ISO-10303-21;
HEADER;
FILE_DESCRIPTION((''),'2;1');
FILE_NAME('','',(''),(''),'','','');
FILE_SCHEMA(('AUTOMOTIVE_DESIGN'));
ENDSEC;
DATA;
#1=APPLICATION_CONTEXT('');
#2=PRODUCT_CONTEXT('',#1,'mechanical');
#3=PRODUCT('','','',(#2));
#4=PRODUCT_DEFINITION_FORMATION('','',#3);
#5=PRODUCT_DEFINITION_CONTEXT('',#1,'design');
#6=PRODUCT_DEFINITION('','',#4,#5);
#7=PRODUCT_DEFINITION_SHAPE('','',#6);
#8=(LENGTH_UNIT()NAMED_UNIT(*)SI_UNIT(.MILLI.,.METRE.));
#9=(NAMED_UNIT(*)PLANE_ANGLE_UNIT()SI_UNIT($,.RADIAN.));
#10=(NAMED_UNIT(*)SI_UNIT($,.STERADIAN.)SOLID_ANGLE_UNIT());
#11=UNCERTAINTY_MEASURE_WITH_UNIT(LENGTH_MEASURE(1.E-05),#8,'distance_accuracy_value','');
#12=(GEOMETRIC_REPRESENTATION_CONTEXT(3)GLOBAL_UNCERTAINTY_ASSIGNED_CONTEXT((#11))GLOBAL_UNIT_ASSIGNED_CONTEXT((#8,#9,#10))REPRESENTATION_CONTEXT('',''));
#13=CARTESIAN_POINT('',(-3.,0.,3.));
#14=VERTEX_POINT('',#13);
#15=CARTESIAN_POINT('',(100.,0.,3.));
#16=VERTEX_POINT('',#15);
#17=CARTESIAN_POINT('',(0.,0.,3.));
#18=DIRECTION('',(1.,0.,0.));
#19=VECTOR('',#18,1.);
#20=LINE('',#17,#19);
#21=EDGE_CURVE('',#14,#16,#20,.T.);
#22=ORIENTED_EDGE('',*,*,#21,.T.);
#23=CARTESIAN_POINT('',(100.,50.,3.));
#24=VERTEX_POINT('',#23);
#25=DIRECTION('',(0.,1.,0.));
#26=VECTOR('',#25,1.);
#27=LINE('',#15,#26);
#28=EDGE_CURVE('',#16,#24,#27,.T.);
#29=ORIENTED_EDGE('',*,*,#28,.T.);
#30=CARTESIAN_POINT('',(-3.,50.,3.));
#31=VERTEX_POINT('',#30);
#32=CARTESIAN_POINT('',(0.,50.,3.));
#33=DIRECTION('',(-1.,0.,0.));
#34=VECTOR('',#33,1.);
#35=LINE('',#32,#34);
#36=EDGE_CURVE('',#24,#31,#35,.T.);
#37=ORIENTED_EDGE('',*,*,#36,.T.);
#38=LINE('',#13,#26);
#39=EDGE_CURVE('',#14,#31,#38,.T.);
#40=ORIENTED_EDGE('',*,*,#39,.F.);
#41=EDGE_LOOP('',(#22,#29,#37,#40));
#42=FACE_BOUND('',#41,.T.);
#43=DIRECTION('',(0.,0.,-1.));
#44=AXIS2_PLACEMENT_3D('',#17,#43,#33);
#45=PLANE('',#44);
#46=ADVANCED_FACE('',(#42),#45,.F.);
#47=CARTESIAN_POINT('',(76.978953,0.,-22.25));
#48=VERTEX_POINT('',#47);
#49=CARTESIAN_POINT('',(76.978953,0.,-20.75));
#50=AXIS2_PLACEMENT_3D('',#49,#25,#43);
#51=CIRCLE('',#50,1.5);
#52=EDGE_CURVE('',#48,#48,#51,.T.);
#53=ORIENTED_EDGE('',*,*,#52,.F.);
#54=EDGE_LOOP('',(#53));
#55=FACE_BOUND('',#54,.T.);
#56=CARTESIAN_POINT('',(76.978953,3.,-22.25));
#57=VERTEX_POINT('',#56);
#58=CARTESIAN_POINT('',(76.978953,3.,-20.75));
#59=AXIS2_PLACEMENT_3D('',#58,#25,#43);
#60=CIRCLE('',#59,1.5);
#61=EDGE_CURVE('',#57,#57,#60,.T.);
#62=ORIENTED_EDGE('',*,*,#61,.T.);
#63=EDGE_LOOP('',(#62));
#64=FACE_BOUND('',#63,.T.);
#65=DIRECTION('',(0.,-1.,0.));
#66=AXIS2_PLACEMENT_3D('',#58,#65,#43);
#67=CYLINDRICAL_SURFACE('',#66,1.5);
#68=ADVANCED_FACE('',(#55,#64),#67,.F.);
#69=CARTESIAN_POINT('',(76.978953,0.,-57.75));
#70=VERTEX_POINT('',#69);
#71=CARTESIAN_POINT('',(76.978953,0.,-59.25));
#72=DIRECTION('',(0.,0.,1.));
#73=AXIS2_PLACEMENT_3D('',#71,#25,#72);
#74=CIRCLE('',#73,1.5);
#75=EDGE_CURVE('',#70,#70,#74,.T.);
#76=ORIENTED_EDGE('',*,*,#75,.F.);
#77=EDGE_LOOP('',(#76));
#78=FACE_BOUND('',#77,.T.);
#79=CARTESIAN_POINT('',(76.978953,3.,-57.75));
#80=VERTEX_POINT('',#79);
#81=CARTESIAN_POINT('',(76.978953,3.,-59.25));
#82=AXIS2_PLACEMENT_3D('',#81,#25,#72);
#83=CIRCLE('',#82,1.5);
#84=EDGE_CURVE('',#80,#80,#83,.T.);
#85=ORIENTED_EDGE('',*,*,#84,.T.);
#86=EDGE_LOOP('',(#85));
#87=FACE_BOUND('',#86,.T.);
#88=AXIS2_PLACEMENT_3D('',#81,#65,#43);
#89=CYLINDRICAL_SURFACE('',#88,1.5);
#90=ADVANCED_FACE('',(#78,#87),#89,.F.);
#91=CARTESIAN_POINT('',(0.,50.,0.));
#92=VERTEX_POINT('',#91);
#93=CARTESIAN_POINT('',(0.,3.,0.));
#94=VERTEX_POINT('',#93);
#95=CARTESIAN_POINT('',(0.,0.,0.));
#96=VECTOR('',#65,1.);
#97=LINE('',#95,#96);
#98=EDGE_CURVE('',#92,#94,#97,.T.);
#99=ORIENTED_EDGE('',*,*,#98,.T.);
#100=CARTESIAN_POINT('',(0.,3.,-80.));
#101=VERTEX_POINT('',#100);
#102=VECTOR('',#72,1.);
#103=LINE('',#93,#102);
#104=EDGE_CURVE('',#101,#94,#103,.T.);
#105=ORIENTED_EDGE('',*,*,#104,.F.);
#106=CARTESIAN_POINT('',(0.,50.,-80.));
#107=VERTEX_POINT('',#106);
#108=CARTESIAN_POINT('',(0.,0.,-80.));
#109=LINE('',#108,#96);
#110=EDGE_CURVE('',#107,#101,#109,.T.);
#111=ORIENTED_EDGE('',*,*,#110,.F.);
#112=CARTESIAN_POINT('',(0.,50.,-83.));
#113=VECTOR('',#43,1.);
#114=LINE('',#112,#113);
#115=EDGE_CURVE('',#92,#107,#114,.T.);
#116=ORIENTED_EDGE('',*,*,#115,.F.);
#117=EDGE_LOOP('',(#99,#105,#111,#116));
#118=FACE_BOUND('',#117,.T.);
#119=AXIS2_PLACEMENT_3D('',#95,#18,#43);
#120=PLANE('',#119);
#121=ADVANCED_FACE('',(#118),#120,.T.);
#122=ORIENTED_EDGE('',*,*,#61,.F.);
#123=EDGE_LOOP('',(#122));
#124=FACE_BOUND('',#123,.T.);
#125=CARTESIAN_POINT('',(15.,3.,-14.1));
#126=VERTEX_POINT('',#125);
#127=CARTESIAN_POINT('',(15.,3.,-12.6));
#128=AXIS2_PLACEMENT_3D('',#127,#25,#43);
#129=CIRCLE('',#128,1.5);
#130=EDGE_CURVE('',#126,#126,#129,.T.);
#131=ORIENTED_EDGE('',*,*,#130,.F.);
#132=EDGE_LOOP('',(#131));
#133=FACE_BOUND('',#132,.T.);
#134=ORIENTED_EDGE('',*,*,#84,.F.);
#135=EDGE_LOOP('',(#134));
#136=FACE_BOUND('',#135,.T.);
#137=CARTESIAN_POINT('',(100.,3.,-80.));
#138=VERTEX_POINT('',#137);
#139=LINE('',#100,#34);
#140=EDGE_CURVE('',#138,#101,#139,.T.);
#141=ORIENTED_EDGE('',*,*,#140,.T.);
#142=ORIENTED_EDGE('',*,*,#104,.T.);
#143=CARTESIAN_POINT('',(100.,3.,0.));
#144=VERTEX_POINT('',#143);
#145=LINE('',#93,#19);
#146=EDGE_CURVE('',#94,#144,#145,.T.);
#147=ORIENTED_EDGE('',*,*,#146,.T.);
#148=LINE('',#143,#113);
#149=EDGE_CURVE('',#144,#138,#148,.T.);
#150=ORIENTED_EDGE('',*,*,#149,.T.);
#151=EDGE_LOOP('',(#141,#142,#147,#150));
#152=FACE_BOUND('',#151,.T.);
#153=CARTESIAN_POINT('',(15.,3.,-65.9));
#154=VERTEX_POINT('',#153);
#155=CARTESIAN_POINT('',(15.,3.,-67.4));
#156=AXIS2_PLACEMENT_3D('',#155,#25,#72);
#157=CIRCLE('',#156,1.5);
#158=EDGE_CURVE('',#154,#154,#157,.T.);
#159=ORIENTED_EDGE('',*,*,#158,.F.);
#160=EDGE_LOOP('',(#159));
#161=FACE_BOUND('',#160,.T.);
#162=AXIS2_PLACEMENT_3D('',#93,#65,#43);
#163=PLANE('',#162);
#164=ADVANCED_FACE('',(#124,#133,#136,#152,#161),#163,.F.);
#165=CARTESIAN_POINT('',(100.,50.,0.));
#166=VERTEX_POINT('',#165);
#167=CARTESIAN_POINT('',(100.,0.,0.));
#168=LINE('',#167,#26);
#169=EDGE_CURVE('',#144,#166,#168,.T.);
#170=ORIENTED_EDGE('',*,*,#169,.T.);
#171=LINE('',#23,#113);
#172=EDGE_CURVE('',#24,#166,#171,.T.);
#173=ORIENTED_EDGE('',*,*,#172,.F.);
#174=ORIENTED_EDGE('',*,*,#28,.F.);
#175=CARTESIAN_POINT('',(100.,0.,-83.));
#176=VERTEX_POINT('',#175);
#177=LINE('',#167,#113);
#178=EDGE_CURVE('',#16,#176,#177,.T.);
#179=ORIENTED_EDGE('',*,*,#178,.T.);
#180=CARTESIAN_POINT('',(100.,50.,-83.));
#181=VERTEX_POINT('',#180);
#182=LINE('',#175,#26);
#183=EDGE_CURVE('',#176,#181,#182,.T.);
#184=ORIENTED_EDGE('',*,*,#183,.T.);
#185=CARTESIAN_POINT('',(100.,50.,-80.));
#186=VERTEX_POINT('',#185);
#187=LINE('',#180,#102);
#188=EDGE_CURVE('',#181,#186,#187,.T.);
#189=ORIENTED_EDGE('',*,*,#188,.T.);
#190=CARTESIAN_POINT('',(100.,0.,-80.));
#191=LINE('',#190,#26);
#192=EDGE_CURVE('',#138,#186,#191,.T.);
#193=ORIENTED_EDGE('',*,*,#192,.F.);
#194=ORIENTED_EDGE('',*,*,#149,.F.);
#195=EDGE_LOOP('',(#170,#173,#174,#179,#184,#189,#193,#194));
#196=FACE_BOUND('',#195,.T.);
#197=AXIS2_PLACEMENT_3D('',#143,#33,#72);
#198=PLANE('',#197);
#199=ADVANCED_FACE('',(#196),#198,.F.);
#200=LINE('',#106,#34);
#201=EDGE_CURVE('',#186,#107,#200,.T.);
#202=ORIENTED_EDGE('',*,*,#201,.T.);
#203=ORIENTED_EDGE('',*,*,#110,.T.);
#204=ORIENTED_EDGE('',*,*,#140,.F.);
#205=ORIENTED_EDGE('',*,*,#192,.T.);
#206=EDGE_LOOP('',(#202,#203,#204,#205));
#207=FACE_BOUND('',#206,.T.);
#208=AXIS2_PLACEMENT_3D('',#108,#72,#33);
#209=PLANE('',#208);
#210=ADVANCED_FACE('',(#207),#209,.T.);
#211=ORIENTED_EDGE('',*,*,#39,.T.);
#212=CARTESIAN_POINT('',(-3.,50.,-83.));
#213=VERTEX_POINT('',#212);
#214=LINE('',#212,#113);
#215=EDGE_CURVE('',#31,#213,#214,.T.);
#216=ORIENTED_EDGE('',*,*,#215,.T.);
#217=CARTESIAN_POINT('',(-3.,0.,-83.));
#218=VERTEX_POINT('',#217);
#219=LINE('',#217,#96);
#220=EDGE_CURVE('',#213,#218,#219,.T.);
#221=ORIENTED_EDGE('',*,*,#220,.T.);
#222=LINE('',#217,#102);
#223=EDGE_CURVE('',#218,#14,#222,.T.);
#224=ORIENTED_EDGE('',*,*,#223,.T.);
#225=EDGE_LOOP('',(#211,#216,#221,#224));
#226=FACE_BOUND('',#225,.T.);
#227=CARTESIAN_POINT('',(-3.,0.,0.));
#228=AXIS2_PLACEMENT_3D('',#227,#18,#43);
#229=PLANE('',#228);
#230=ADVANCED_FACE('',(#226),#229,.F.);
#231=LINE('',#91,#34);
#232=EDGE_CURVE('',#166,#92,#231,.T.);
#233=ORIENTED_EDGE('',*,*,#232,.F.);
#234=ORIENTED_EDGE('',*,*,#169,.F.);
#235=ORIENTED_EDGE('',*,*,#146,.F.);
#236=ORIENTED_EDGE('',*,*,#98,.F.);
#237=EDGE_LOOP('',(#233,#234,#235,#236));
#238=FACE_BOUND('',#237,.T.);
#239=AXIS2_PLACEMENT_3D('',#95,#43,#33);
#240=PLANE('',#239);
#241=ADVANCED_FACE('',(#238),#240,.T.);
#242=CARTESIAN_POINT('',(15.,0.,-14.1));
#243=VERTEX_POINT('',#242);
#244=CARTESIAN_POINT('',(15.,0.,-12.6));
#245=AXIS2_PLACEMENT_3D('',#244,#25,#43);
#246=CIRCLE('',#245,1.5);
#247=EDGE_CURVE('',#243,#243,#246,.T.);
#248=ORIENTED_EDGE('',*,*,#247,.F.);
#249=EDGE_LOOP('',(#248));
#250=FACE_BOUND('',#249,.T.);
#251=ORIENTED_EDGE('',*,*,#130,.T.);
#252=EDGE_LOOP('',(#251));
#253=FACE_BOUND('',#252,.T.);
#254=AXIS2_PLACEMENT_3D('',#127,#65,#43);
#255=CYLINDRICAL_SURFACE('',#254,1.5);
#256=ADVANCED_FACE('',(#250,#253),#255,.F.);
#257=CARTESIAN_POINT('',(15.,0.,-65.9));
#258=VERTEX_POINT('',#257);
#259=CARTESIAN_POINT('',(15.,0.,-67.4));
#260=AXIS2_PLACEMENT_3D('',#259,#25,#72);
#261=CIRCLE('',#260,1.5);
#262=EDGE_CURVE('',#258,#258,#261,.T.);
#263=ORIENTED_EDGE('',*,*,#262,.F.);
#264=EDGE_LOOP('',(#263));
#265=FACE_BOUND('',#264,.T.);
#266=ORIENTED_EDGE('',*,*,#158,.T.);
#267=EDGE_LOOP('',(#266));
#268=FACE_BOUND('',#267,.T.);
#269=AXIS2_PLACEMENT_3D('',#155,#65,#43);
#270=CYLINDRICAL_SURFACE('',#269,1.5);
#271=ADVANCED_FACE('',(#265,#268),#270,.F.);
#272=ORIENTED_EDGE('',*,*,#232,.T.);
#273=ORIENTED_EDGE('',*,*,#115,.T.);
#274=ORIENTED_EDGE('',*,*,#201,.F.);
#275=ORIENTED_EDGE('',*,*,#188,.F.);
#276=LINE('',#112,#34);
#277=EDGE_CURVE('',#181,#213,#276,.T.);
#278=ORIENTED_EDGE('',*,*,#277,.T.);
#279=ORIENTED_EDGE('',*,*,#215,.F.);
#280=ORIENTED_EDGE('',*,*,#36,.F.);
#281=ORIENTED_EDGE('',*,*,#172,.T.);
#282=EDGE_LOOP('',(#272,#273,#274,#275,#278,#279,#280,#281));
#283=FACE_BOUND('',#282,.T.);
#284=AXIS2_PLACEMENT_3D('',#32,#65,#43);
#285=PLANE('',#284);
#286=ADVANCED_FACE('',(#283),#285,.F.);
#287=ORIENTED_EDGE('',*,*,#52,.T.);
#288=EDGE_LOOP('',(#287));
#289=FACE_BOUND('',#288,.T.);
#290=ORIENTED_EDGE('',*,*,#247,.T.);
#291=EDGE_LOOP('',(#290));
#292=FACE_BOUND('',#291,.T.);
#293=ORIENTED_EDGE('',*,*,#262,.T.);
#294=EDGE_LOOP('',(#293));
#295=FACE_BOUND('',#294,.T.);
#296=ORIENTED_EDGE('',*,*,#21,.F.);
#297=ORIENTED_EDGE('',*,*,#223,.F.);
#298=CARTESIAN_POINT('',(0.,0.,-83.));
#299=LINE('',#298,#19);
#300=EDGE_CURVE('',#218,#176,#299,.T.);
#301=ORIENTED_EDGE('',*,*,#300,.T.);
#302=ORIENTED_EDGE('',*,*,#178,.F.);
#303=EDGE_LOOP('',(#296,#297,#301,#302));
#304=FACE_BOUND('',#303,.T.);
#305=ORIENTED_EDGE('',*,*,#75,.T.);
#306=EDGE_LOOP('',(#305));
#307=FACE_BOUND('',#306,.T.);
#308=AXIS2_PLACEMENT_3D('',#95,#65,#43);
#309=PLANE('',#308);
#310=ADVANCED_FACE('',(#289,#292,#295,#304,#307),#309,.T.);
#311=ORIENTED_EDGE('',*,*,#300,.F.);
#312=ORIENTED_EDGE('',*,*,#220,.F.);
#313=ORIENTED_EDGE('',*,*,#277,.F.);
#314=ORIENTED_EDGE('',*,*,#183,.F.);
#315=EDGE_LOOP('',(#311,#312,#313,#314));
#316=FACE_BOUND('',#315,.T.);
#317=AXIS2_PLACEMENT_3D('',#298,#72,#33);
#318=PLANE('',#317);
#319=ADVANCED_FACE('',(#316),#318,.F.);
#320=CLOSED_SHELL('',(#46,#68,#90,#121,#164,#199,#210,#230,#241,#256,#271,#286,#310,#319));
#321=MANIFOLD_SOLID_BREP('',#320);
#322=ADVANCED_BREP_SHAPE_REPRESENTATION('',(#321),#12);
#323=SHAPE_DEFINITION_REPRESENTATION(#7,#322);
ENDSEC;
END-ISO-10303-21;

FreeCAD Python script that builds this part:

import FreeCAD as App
import Part
import Sketcher

V = App.Vector

doc = App.newDocument("Part")
body = doc.addObject("PartDesign::Body", "Body")

sketch1 = body.newObject("Sketcher::SketchObject", "Sketch")
sketch1.AttachmentSupport = (doc.getObject("XZ_Plane"), [""])
sketch1.MapMode = "FlatFace"
sketch1.addGeometry([
    Part.LineSegment(V(0, -80, 0), V(0, 0, 0)),
    Part.LineSegment(V(0, 0, 0), V(100, 0, 0)),
    Part.LineSegment(V(100, 0, 0), V(100, -80, 0)),
    Part.LineSegment(V(100, -80, 0), V(0, -80, 0)),
    Part.Circle(V(15, -12.6, 0), V(0, 0, 1), 1.5),
    Part.Circle(V(77, -20.8, 0), V(0, 0, 1), 1.5),
    Part.Circle(V(15, -67.4, 0), V(0, 0, 1), 1.5),
    Part.Circle(V(77, -59.2, 0), V(0, 0, 1), 1.5),
], False)
sketch1.addConstraint([
    Sketcher.Constraint("Coincident", 0, 2, 1, 1),
    Sketcher.Constraint("Coincident", 1, 2, 2, 1),
    Sketcher.Constraint("Coincident", 2, 2, 3, 1),
    Sketcher.Constraint("Coincident", 3, 2, 0, 1),
    Sketcher.Constraint("Vertical", 0),
    Sketcher.Constraint("Horizontal", 1),
    Sketcher.Constraint("Vertical", 2),
    Sketcher.Constraint("Horizontal", 3),
    Sketcher.Constraint("Coincident", 0, 2, -1, 1),
    Sketcher.Constraint("Equal", 4, 5),
    Sketcher.Constraint("Equal", 5, 6),
    Sketcher.Constraint("Equal", 6, 7),
    Sketcher.Constraint("Vertical", 4, 3, 6, 3),
    Sketcher.Constraint("Vertical", 5, 3, 7, 3),
    Sketcher.Constraint("Diameter", 4, 3.0),
    Sketcher.Constraint("DistanceX", 1, 1, 1, 2, 100.0),
    Sketcher.Constraint("DistanceY", 0, 1, 0, 2, 80.0),
    Sketcher.Constraint("DistanceX", -1, 1, 4, 3, 15.0),
    Sketcher.Constraint("DistanceY", 4, 3, -1, 1, 12.6),
    Sketcher.Constraint("DistanceY", 6, 3, -1, 1, 67.4),
    Sketcher.Constraint("DistanceY", 7, 3, 5, 3, 38.5),
    Sketcher.Constraint("DistanceY", 5, 3, -1, 1, 20.75),
    Sketcher.Constraint("DistanceX", -1, 1, 5, 3, 76.978953),
])
pad1 = body.newObject("PartDesign::Pad", "Pad")
pad1.Profile = sketch1
pad1.Length = 3
pad1.Reversed = True

sketch2 = body.newObject("Sketcher::SketchObject", "Sketch001")
sketch2.AttachmentSupport = (doc.getObject("XY_Plane"), [""])
sketch2.MapMode = "FlatFace"
sketch2.addGeometry([
    Part.LineSegment(V(0, 50, 0), V(0, 0, 0)),
    Part.LineSegment(V(0, 0, 0), V(100, 0, 0)),
    Part.LineSegment(V(100, 0, 0), V(100, 50, 0)),
    Part.LineSegment(V(100, 50, 0), V(0, 50, 0)),
], False)
sketch2.addConstraint([
    Sketcher.Constraint("Coincident", 0, 2, 1, 1),
    Sketcher.Constraint("Coincident", 1, 2, 2, 1),
    Sketcher.Constraint("Coincident", 2, 2, 3, 1),
    Sketcher.Constraint("Coincident", 3, 2, 0, 1),
    Sketcher.Constraint("Vertical", 0),
    Sketcher.Constraint("Horizontal", 1),
    Sketcher.Constraint("Vertical", 2),
    Sketcher.Constraint("Horizontal", 3),
    Sketcher.Constraint("Coincident", 0, 2, -1, 1),
    Sketcher.Constraint("DistanceX", 1, 1, 1, 2, 100.0),
    Sketcher.Constraint("DistanceY", 0, 2, 0, 1, 50.0),
])
pad2 = body.newObject("PartDesign::Pad", "Pad001")
pad2.Profile = sketch2
pad2.Length = 3
doc.recompute()

datumplane = body.newObject("PartDesign::Plane", "DatumPlane")
datumplane.AttachmentSupport = (doc.getObject("XY_Plane"), [""])
datumplane.MapMode = "FlatFace"
datumplane.AttachmentOffset = App.Placement(V(0, 0, -40), App.Rotation())
mirrored = body.newObject("PartDesign::Mirrored", "Mirrored")
mirrored.Originals = [pad2]
mirrored.MirrorPlane = (datumplane, [""])
body.Tip = mirrored

sketch3 = body.newObject("Sketcher::SketchObject", "Sketch002")
sketch3.AttachmentSupport = (doc.getObject("YZ_Plane"), [""])
sketch3.MapMode = "FlatFace"
sketch3.addGeometry([
    Part.LineSegment(V(50, -83, 0), V(0, -83, 0)),
    Part.LineSegment(V(0, -83, 0), V(0, 3, 0)),
    Part.LineSegment(V(0, 3, 0), V(50, 3, 0)),
    Part.LineSegment(V(50, 3, 0), V(50, -83, 0)),
], False)
sketch3.addConstraint([
    Sketcher.Constraint("Coincident", 0, 2, 1, 1),
    Sketcher.Constraint("Coincident", 1, 2, 2, 1),
    Sketcher.Constraint("Coincident", 2, 2, 3, 1),
    Sketcher.Constraint("Coincident", 3, 2, 0, 1),
    Sketcher.Constraint("Horizontal", 0),
    Sketcher.Constraint("Vertical", 1),
    Sketcher.Constraint("Horizontal", 2),
    Sketcher.Constraint("Vertical", 3),
    Sketcher.Constraint("PointOnObject", 0, 2, -2),
    Sketcher.Constraint("DistanceX", 0, 2, 0, 1, 50.0),
    Sketcher.Constraint("DistanceY", 1, 1, 1, 2, 86.0),
    Sketcher.Constraint("DistanceY", 0, 2, -1, 1, 83.0),
])
pad3 = body.newObject("PartDesign::Pad", "Pad002")
pad3.Profile = sketch3
pad3.Length = 3
pad3.Reversed = True

doc.recompute()
